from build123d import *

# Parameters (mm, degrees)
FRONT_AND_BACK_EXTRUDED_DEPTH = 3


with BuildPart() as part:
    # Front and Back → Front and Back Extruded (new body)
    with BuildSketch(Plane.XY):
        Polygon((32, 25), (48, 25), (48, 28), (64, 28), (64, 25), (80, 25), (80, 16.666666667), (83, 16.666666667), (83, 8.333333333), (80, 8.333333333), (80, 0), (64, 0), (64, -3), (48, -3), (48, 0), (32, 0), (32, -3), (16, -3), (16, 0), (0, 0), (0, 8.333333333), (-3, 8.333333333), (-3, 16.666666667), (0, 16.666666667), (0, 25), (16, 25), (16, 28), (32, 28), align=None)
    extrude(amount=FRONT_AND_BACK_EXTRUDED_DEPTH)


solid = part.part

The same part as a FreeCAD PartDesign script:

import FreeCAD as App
import Part
import Sketcher

doc = App.newDocument("Part")
body = doc.addObject("PartDesign::Body", "Body")

sketch1 = body.newObject("Sketcher::SketchObject", "Sketch")
sketch1.AttachmentSupport = (doc.getObject("XY_Plane"), [""])
sketch1.MapMode = "FlatFace"
sketch1.addGeometry([
    Part.LineSegment(App.Vector(48, 25, 0), App.Vector(32, 25, 0)),
    Part.LineSegment(App.Vector(32, 25, 0), App.Vector(32, 28, 0)),
    Part.LineSegment(App.Vector(32, 28, 0), App.Vector(16, 28, 0)),
    Part.LineSegment(App.Vector(16, 28, 0), App.Vector(16, 25, 0)),
    Part.LineSegment(App.Vector(16, 25, 0), App.Vector(0, 25, 0)),
    Part.LineSegment(App.Vector(0, 25, 0), App.Vector(0, 16.7, 0)),
    Part.LineSegment(App.Vector(0, 16.7, 0), App.Vector(-3, 16.7, 0)),
    Part.LineSegment(App.Vector(-3, 16.7, 0), App.Vector(-3, 8.3, 0)),
    Part.LineSegment(App.Vector(-3, 8.3, 0), App.Vector(0, 8.3, 0)),
    Part.LineSegment(App.Vector(0, 8.3, 0), App.Vector(0, 0, 0)),
    Part.LineSegment(App.Vector(0, 0, 0), App.Vector(16, 0, 0)),
    Part.LineSegment(App.Vector(16, 0, 0), App.Vector(16, -3, 0)),
    Part.LineSegment(App.Vector(16, -3, 0), App.Vector(32, -3, 0)),
    Part.LineSegment(App.Vector(32, -3, 0), App.Vector(32, 0, 0)),
    Part.LineSegment(App.Vector(32, 0, 0), App.Vector(48, 0, 0)),
    Part.LineSegment(App.Vector(48, 0, 0), App.Vector(48, -3, 0)),
    Part.LineSegment(App.Vector(48, -3, 0), App.Vector(64, -3, 0)),
    Part.LineSegment(App.Vector(64, -3, 0), App.Vector(64, 0, 0)),
    Part.LineSegment(App.Vector(64, 0, 0), App.Vector(80, 0, 0)),
    Part.LineSegment(App.Vector(80, 0, 0), App.Vector(80, 8.3, 0)),
    Part.LineSegment(App.Vector(80, 8.3, 0), App.Vector(83, 8.3, 0)),
    Part.LineSegment(App.Vector(83, 8.3, 0), App.Vector(83, 16.7, 0)),
    Part.LineSegment(App.Vector(83, 16.7, 0), App.Vector(80, 16.7, 0)),
    Part.LineSegment(App.Vector(80, 16.7, 0), App.Vector(80, 25, 0)),
    Part.LineSegment(App.Vector(80, 25, 0), App.Vector(64, 25, 0)),
    Part.LineSegment(App.Vector(64, 25, 0), App.Vector(64, 28, 0)),
    Part.LineSegment(App.Vector(64, 28, 0), App.Vector(48, 28, 0)),
    Part.LineSegment(App.Vector(48, 28, 0), App.Vector(48, 25, 0)),
], False)
sketch1.addConstraint([
    Sketcher.Constraint("Coincident", 0, 2, 1, 1),
    Sketcher.Constraint("Coincident", 1, 2, 2, 1),
    Sketcher.Constraint("Coincident", 2, 2, 3, 1),
    Sketcher.Constraint("Coincident", 3, 2, 4, 1),
    Sketcher.Constraint("Coincident", 4, 2, 5, 1),
    Sketcher.Constraint("Coincident", 5, 2, 6, 1),
    Sketcher.Constraint("Coincident", 6, 2, 7, 1),
    Sketcher.Constraint("Coincident", 7, 2, 8, 1),
    Sketcher.Constraint("Coincident", 8, 2, 9, 1),
    Sketcher.Constraint("Coincident", 9, 2, 10, 1),
    Sketcher.Constraint("Coincident", 10, 2, 11, 1),
    Sketcher.Constraint("Coincident", 11, 2, 12, 1),
    Sketcher.Constraint("Coincident", 12, 2, 13, 1),
    Sketcher.Constraint("Coincident", 13, 2, 14, 1),
    Sketcher.Constraint("Coincident", 14, 2, 15, 1),
    Sketcher.Constraint("Coincident", 15, 2, 16, 1),
    Sketcher.Constraint("Coincident", 16, 2, 17, 1),
    Sketcher.Constraint("Coincident", 17, 2, 18, 1),
    Sketcher.Constraint("Coincident", 18, 2, 19, 1),
    Sketcher.Constraint("Coincident", 19, 2, 20, 1),
    Sketcher.Constraint("Coincident", 20, 2, 21, 1),
    Sketcher.Constraint("Coincident", 21, 2, 22, 1),
    Sketcher.Constraint("Coincident", 22, 2, 23, 1),
    Sketcher.Constraint("Coincident", 23, 2, 24, 1),
    Sketcher.Constraint("Coincident", 24, 2, 25, 1),
    Sketcher.Constraint("Coincident", 25, 2, 26, 1),
    Sketcher.Constraint("Coincident", 26, 2, 27, 1),
    Sketcher.Constraint("Coincident", 27, 2, 0, 1),
    Sketcher.Constraint("Horizontal", 0),
    Sketcher.Constraint("Vertical", 1),
    Sketcher.Constraint("Horizontal", 2),
    Sketcher.Constraint("Vertical", 3),
    Sketcher.Constraint("Horizontal", 4),
    Sketcher.Constraint("Vertical", 5),
    Sketcher.Constraint("Horizontal", 6),
    Sketcher.Constraint("Vertical", 7),
    Sketcher.Constraint("Horizontal", 8),
    Sketcher.Constraint("Vertical", 9),
    Sketcher.Constraint("Horizontal", 10),
    Sketcher.Constraint("Vertical", 11),
    Sketcher.Constraint("Horizontal", 12),
    Sketcher.Constraint("Vertical", 13),
    Sketcher.Constraint("Horizontal", 14),
    Sketcher.Constraint("Vertical", 15),
    Sketcher.Constraint("Horizontal", 16),
    Sketcher.Constraint("Vertical", 17),
    Sketcher.Constraint("Horizontal", 18),
    Sketcher.Constraint("Vertical", 19),
    Sketcher.Constraint("Horizontal", 20),
    Sketcher.Constraint("Vertical", 21),
    Sketcher.Constraint("Horizontal", 22),
    Sketcher.Constraint("Vertical", 23),
    Sketcher.Constraint("Horizontal", 24),
    Sketcher.Constraint("Vertical", 25),
    Sketcher.Constraint("Horizontal", 26),
    Sketcher.Constraint("Vertical", 27),
    Sketcher.Constraint("Coincident", 9, 2, -1, 1),
    Sketcher.Constraint("PointOnObject", 4, 2, -2),
    Sketcher.Constraint("PointOnObject", 13, 2, -1),
    Sketcher.Constraint("PointOnObject", 17, 2, -1),
    Sketcher.Constraint("Horizontal", 0, 2, 3, 2),
    Sketcher.Constraint("Horizontal", 12, 2, 15, 2),
    Sketcher.Constraint("Horizontal", 8, 2, 19, 2),
    Sketcher.Constraint("Horizontal", 6, 2, 21, 2),
    Sketcher.Constraint("Horizontal", 4, 2, 23, 2),
    Sketcher.Constraint("Horizontal", 2, 2, 25, 2),
    Sketcher.Constraint("Vertical", 3, 2, 10, 2),
    Sketcher.Constraint("Vertical", 1, 2, 12, 2),
    Sketcher.Constraint("Vertical", 19, 2, 22, 2),
    Sketcher.Constraint("Vertical", 17, 2, 24, 2),
    Sketcher.Constraint("Vertical", 15, 2, 26, 2),
    Sketcher.Constraint("Equal", 0, 2),
    Sketcher.Constraint("Equal", 2, 4),
    Sketcher.Constraint("Equal", 14, 16),
    Sketcher.Constraint("Equal", 16, 18),
    Sketcher.Constraint("Equal", 8, 20),
    Sketcher.Constraint("Equal", 22, 1),
    Sketcher.Constraint("Equal", 5, 7),
    Sketcher.Constraint("Equal", 7, 9),
    Sketcher.Constraint("Equal", 3, 11),
    Sketcher.Constraint("DistanceX", 0, 2, 0, 1, 16.0),
    Sketcher.Constraint("DistanceX", 6, 2, 6, 1, 3.0),
    Sketcher.Constraint("DistanceY", -1, 1, 0, 2, 25.0),
])
pad1 = body.newObject("PartDesign::Pad", "Pad")
pad1.Profile = sketch1
pad1.Length = 3

doc.recompute()
